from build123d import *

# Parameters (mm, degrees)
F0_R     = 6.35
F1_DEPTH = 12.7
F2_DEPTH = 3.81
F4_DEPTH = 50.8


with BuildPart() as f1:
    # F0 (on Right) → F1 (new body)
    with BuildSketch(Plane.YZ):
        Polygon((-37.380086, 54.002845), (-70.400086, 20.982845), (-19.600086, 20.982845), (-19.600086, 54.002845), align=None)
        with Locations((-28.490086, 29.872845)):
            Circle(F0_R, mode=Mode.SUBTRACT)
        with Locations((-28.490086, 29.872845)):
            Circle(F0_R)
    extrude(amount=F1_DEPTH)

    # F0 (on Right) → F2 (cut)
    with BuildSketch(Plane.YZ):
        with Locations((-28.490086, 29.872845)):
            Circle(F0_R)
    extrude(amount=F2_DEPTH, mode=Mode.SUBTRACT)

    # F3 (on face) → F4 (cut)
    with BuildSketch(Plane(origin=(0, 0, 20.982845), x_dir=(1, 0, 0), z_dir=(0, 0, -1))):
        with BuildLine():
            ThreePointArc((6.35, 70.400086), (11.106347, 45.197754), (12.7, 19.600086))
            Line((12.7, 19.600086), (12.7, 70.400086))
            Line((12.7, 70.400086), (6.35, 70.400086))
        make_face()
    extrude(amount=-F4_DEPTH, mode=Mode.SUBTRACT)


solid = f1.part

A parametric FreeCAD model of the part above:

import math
import FreeCAD as App
import Part
import Sketcher
from FreeCAD import Vector
Q = App.Units.Quantity

doc = App.newDocument("Part")
body = doc.addObject("PartDesign::Body", "Body")

sketch1 = body.newObject("Sketcher::SketchObject", "Sketch")
sketch1.AttachmentSupport = (doc.getObject("YZ_Plane"), [""])
sketch1.MapMode = "FlatFace"
sketch1.addGeometry([
    Part.LineSegment(Vector(-37.380086, 54.002845, 0), Vector(-70.400086, 20.982845, 0)),
    Part.LineSegment(Vector(-70.400086, 20.982845, 0), Vector(-19.600086, 20.982845, 0)),
    Part.LineSegment(Vector(-19.600086, 20.982845, 0), Vector(-19.600086, 54.002845, 0)),
    Part.LineSegment(Vector(-19.600086, 54.002845, 0), Vector(-37.380086, 54.002845, 0)),
], False)
sketch1.addConstraint([
    Sketcher.Constraint("Coincident", 0, 2, 1, 1),
    Sketcher.Constraint("Coincident", 1, 2, 2, 1),
    Sketcher.Constraint("Coincident", 2, 2, 3, 1),
    Sketcher.Constraint("Coincident", 3, 2, 0, 1),
    Sketcher.Constraint("Horizontal", 1),
    Sketcher.Constraint("Vertical", 2),
    Sketcher.Constraint("Horizontal", 3),
    Sketcher.Constraint("DistanceX", 1, 1, 1, 2, Q("2 in")),
    Sketcher.Constraint("DistanceX", 3, 2, 3, 1, Q("0.7 in")),
    Sketcher.Constraint("DistanceY", 2, 1, 2, 2, Q("1.3 in")),
    Sketcher.Constraint("DistanceX", 0, 2, -1, 1, 70.400086),
    Sketcher.Constraint("DistanceY", -1, 1, 0, 2, 20.982845),
])
pad1 = body.newObject("PartDesign::Pad", "Pad")
pad1.Profile = sketch1
pad1.Length = Q("0.5 in")

sketch2 = body.newObject("Sketcher::SketchObject", "Sketch001")
sketch2.AttachmentSupport = (doc.getObject("YZ_Plane"), [""])
sketch2.MapMode = "FlatFace"
sketch2.addGeometry(Part.Circle(Vector(-28.490086, 29.872845, 0), Vector(0, 0, 1), 6.35), False)
sketch2.addConstraint([
    Sketcher.Constraint("Diameter", 0, Q("0.5 in")),
    Sketcher.Constraint("DistanceX", 0, 3, -1, 1, 28.490086),
    Sketcher.Constraint("DistanceY", -1, 1, 0, 3, 29.872845),
])
pocket1 = body.newObject("PartDesign::Pocket", "Pocket")
pocket1.Profile = sketch2
pocket1.Length = Q("0.15 in")
pocket1.Reversed = True

sketch3 = body.newObject("Sketcher::SketchObject", "Sketch002")
sketch3.AttachmentSupport = (doc.getObject("XY_Plane"), [""])
sketch3.MapMode = "FlatFace"
sketch3.AttachmentOffset = App.Placement(Vector(0, 0, 20.982845), App.Rotation())
sketch3.addGeometry([
    Part.ArcOfCircle(Part.Circle(Vector(-193.674981, -19.600088, 0), Vector(0, 0, 1), 206.374981), math.radians(-14.250033), math.radians(0.000001)),
    Part.LineSegment(Vector(12.7, -19.600086, 0), Vector(12.7, -70.400086, 0)),
    Part.LineSegment(Vector(12.7, -70.400086, 0), Vector(6.35, -70.400086, 0)),
], False)
sketch3.addConstraint([
    Sketcher.Constraint("Tangent", 0, 2, 1, 1),
    Sketcher.Constraint("Coincident", 1, 2, 2, 1),
    Sketcher.Constraint("Coincident", 2, 2, 0, 1),
    Sketcher.Constraint("Vertical", 1),
    Sketcher.Constraint("Horizontal", 2),
    Sketcher.Constraint("DistanceY", 1, 2, 1, 1, Q("2 in")),
    Sketcher.Constraint("DistanceX", 2, 2, 2, 1, Q("0.25 in")),
    Sketcher.Constraint("DistanceX", -1, 1, 0, 2, Q("0.5 in")),
    Sketcher.Constraint("DistanceY", 0, 3, -1, 1, 19.600088),
])
pocket2 = body.newObject("PartDesign::Pocket", "Pocket001")
pocket2.Profile = sketch3
pocket2.Length = Q("2 in")
pocket2.Reversed = True

doc.recompute()
